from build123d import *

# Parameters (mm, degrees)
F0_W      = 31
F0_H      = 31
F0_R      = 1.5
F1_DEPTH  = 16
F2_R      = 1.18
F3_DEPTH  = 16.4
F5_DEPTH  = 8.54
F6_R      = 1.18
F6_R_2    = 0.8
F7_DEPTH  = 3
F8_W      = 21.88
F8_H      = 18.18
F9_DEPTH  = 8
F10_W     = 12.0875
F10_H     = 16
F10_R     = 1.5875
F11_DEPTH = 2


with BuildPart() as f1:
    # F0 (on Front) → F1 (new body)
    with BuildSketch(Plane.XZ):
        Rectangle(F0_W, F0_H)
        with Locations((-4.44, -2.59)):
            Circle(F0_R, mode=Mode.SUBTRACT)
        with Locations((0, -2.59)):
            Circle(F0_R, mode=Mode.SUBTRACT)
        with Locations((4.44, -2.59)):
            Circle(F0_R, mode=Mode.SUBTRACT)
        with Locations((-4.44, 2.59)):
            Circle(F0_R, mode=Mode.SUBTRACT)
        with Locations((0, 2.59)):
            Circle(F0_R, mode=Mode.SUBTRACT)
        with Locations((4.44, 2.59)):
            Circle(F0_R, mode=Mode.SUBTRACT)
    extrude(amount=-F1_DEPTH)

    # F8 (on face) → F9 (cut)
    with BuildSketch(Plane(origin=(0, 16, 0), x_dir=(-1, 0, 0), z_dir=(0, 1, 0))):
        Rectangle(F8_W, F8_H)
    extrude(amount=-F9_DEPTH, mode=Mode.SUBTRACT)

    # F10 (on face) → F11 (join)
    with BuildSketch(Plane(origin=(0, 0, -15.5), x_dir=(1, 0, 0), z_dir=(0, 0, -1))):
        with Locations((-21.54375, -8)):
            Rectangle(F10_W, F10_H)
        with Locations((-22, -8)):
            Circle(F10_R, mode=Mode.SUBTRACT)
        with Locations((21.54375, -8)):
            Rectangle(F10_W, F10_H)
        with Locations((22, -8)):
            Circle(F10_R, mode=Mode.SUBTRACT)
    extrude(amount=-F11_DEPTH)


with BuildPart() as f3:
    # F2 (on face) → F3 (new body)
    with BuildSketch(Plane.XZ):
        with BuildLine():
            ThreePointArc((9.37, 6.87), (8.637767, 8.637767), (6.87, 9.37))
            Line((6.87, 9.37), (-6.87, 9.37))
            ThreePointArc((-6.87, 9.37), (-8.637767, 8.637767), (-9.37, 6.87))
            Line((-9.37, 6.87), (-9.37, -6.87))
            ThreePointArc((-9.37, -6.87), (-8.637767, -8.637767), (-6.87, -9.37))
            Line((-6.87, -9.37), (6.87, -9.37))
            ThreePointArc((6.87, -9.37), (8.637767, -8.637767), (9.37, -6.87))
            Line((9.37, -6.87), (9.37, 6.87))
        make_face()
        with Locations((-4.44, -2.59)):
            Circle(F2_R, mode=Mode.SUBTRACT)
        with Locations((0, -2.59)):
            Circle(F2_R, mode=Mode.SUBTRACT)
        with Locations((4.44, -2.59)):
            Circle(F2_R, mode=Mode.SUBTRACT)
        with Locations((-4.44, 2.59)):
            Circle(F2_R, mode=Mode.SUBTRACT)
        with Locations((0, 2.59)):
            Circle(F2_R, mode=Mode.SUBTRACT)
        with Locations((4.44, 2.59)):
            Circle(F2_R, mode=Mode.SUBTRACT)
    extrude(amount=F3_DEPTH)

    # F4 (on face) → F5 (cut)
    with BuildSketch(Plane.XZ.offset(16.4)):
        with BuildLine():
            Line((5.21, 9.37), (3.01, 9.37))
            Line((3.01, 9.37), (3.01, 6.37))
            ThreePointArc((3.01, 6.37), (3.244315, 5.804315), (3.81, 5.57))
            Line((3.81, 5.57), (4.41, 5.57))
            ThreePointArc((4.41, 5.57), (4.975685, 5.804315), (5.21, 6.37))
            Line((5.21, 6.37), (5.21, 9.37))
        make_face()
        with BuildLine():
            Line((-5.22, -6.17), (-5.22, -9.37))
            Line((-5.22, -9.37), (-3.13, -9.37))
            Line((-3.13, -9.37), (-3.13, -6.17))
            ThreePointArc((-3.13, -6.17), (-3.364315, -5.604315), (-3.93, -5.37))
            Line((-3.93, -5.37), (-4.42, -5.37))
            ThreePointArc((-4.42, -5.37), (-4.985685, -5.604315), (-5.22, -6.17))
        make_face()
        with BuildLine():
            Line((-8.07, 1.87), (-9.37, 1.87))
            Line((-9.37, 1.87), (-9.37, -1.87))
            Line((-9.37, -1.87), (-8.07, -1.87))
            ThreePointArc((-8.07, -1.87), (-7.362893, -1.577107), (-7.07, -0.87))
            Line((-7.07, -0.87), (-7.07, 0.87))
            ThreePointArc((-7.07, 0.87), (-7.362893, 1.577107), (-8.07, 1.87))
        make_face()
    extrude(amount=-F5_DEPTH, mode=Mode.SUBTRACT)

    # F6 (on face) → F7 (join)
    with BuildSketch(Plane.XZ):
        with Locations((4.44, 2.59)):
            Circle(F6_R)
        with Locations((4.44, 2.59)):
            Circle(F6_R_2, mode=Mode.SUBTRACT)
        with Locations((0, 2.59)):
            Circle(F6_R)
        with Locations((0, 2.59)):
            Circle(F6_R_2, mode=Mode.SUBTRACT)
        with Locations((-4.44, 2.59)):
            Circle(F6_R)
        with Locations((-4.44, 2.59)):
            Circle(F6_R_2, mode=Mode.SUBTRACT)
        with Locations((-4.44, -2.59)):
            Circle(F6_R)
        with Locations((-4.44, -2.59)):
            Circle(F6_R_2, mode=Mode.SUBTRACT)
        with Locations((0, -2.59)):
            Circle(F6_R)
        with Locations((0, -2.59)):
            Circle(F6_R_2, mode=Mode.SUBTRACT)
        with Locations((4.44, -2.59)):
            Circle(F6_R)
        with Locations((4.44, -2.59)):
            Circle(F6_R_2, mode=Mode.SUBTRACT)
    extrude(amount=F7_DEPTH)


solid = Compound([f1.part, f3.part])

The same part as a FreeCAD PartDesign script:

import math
import FreeCAD as App
import Part
import Sketcher

V = App.Vector
Q = App.Units.Quantity


def add_polygon(sketch, points):
    """Adds a closed chain of lines whose ends are joined by coincident constraints."""
    first, n = sketch.GeometryCount, len(points)
    for a, b in zip(points, points[1:] + points[:1]):
        sketch.addGeometry(Part.LineSegment(App.Vector(*a, 0), App.Vector(*b, 0)), False)
    for i in range(n):
        sketch.addConstraint(Sketcher.Constraint("Coincident", first + i, 2, first + (i + 1) % n, 1))

doc = App.newDocument("Part")
body = doc.addObject("PartDesign::Body", "Body")

sketch1 = body.newObject("Sketcher::SketchObject", "Sketch")
sketch1.AttachmentSupport = (doc.getObject("XZ_Plane"), [""])
sketch1.MapMode = "FlatFace"
add_polygon(sketch1, [(-15.5, 15.5), (-15.5, -15.5), (15.5, -15.5), (15.5, 15.5)])
sketch1.addGeometry(Part.Circle(V(-4.4, -2.6, 0), V(0, 0, 1), 1.5), False)
sketch1.addGeometry(Part.Circle(V(0, -2.6, 0), V(0, 0, 1), 1.5), False)
sketch1.addGeometry(Part.Circle(V(4.4, -2.6, 0), V(0, 0, 1), 1.5), False)
sketch1.addGeometry(Part.Circle(V(-4.4, 2.6, 0), V(0, 0, 1), 1.5), False)
sketch1.addGeometry(Part.Circle(V(0, 2.6, 0), V(0, 0, 1), 1.5), False)
sketch1.addGeometry(Part.Circle(V(4.4, 2.6, 0), V(0, 0, 1), 1.5), False)
sketch1.addConstraint([
    Sketcher.Constraint("Vertical", 0),
    Sketcher.Constraint("Horizontal", 1),
    Sketcher.Constraint("Vertical", 2),
    Sketcher.Constraint("Horizontal", 3),
    Sketcher.Constraint("Equal", 4, 5),
    Sketcher.Constraint("Equal", 5, 6),
    Sketcher.Constraint("Equal", 6, 7),
    Sketcher.Constraint("Equal", 7, 8),
    Sketcher.Constraint("Equal", 8, 9),
    Sketcher.Constraint("Symmetric", 6, 3, 7, 3, -1, 1),
    Sketcher.Constraint("Symmetric", 5, 3, 8, 3, -1, 1),
    Sketcher.Constraint("Symmetric", 4, 3, 9, 3, -1, 1),
    Sketcher.Constraint("Symmetric", 0, 2, 2, 2, -1, 1),
    Sketcher.Constraint("Symmetric", 4, 3, 6, 3, -2),
    Sketcher.Constraint("PointOnObject", 5, 3, -2),
    Sketcher.Constraint("Horizontal", 4, 3, 5, 3),
    Sketcher.Constraint("Equal", 3, 0),
    Sketcher.Constraint("Diameter", 4, Q("3 mm")),
    Sketcher.Constraint("DistanceX", 1, 1, 1, 2, Q("31 mm")),
    Sketcher.Constraint("DistanceX", 4, 3, -1, 1, Q("4.44 mm")),
    Sketcher.Constraint("DistanceY", 4, 3, -1, 1, Q("2.59 mm")),
])
pad1 = body.newObject("PartDesign::Pad", "Pad")
pad1.Profile = sketch1
pad1.Length = 16
pad1.Reversed = True

sketch2 = body.newObject("Sketcher::SketchObject", "Sketch001")
sketch2.AttachmentSupport = (doc.getObject("XZ_Plane"), [""])
sketch2.MapMode = "FlatFace"
sketch2.AttachmentOffset = App.Placement(V(0, 0, -16), App.Rotation())
add_polygon(sketch2, [(11, 9), (11, -9), (-11, -9), (-11, 9)])
sketch2.addConstraint([
    Sketcher.Constraint("Vertical", 0),
    Sketcher.Constraint("Horizontal", 1),
    Sketcher.Constraint("Vertical", 2),
    Sketcher.Constraint("Horizontal", 3),
    Sketcher.Constraint("Symmetric", 0, 2, 2, 2, -1, 1),
    Sketcher.Constraint("DistanceX", 1, 2, 1, 1, Q("21.88 mm")),
    Sketcher.Constraint("DistanceY", 0, 2, 0, 1, Q("18.18 mm")),
])
pocket1 = body.newObject("PartDesign::Pocket", "Pocket")
pocket1.Profile = sketch2
pocket1.Length = 8
pocket1.Reversed = True

sketch3 = body.newObject("Sketcher::SketchObject", "Sketch002")
sketch3.AttachmentSupport = (doc.getObject("XY_Plane"), [""])
sketch3.MapMode = "FlatFace"
sketch3.AttachmentOffset = App.Placement(V(0, 0, -15.5), App.Rotation())
add_polygon(sketch3, [(-27.6, 0), (-27.6, 16), (-15.5, 16), (-15.5, 0)])
sketch3.addGeometry(Part.Circle(V(-22, 8, 0), V(0, 0, 1), 1.6), False)
add_polygon(sketch3, [(15.5, 0), (15.5, 16), (27.6, 16), (27.6, 0)])
sketch3.addGeometry(Part.Circle(V(22, 8, 0), V(0, 0, 1), 1.6), False)
sketch3.addConstraint([
    Sketcher.Constraint("Vertical", 0),
    Sketcher.Constraint("Horizontal", 1),
    Sketcher.Constraint("Vertical", 2),
    Sketcher.Constraint("Horizontal", 3),
    Sketcher.Constraint("Vertical", 5),
    Sketcher.Constraint("Horizontal", 6),
    Sketcher.Constraint("Vertical", 7),
    Sketcher.Constraint("Horizontal", 8),
    Sketcher.Constraint("Equal", 4, 9),
    Sketcher.Constraint("Symmetric", 3, 2, 7, 2, -1, 1),
    Sketcher.Constraint("Symmetric", 4, 3, 9, 3, -2),
    Sketcher.Constraint("Symmetric", 1, 2, 5, 2, -2),
    Sketcher.Constraint("PointOnObject", 2, 2, -1),
    Sketcher.Constraint("DistanceY", 0, 1, 0, 2, Q("16 mm")),
    Sketcher.Constraint("Diameter", 4, Q("3.175 mm")),
    Sketcher.Constraint("DistanceX", 4, 3, -1, 1, Q("22 mm")),
    Sketcher.Constraint("DistanceY", -1, 1, 4, 3, Q("8 mm")),
    Sketcher.Constraint("DistanceX", 1, 2, 5, 2, Q("31 mm")),
    Sketcher.Constraint("DistanceX", 1, 1, 1, 2, Q("12.0875 mm")),
])
pad2 = body.newObject("PartDesign::Pad", "Pad001")
pad2.Profile = sketch3
pad2.Length = 2
body2 = doc.addObject("PartDesign::Body", "Body001")

sketch4 = body2.newObject("Sketcher::SketchObject", "Sketch003")
sketch4.AttachmentSupport = (doc.getObject("XZ_Plane001"), [""])
sketch4.MapMode = "FlatFace"
sketch4.addGeometry([
    Part.ArcOfCircle(Part.Circle(V(6.9, 6.9, 0), V(0, 0, 1), 2.5), math.radians(0), math.radians(90)),
    Part.LineSegment(V(6.9, 9.4, 0), V(-6.9, 9.4, 0)),
    Part.ArcOfCircle(Part.Circle(V(-6.9, 6.9, 0), V(0, 0, 1), 2.5), math.radians(90), math.radians(180)),
    Part.LineSegment(V(-9.4, 6.9, 0), V(-9.4, -6.9, 0)),
    Part.ArcOfCircle(Part.Circle(V(-6.9, -6.9, 0), V(0, 0, 1), 2.5), math.radians(180), math.radians(270)),
    Part.LineSegment(V(-6.9, -9.4, 0), V(6.9, -9.4, 0)),
    Part.ArcOfCircle(Part.Circle(V(6.9, -6.9, 0), V(0, 0, 1), 2.5), math.radians(-90), math.radians(0)),
    Part.LineSegment(V(9.4, -6.9, 0), V(9.4, 6.9, 0)),
    Part.Circle(V(-4.4, -2.6, 0), V(0, 0, 1), 1.2),
    Part.Circle(V(0, -2.6, 0), V(0, 0, 1), 1.2),
    Part.Circle(V(4.4, -2.6, 0), V(0, 0, 1), 1.2),
    Part.Circle(V(-4.4, 2.6, 0), V(0, 0, 1), 1.2),
    Part.Circle(V(0, 2.6, 0), V(0, 0, 1), 1.2),
    Part.Circle(V(4.4, 2.6, 0), V(0, 0, 1), 1.2),
], False)
sketch4.addConstraint([
    Sketcher.Constraint("Tangent", 0, 2, 1, 1),
    Sketcher.Constraint("Tangent", 1, 2, 2, 1),
    Sketcher.Constraint("Tangent", 2, 2, 3, 1),
    Sketcher.Constraint("Tangent", 3, 2, 4, 1),
    Sketcher.Constraint("Tangent", 4, 2, 5, 1),
    Sketcher.Constraint("Tangent", 5, 2, 6, 1),
    Sketcher.Constraint("Tangent", 6, 2, 7, 1),
    Sketcher.Constraint("Tangent", 7, 2, 0, 1),
    Sketcher.Constraint("Horizontal", 1),
    Sketcher.Constraint("Vertical", 3),
    Sketcher.Constraint("Horizontal", 5),
    Sketcher.Constraint("Vertical", 7),
    Sketcher.Constraint("Equal", 0, 2),
    Sketcher.Constraint("Equal", 2, 4),
    Sketcher.Constraint("Equal", 4, 6),
    Sketcher.Constraint("Equal", 8, 9),
    Sketcher.Constraint("Equal", 9, 10),
    Sketcher.Constraint("Equal", 10, 11),
    Sketcher.Constraint("Equal", 11, 12),
    Sketcher.Constraint("Equal", 12, 13),
    Sketcher.Constraint("Symmetric", 0, 3, 4, 3, -1, 1),
    Sketcher.Constraint("Symmetric", 10, 3, 11, 3, -1, 1),
    Sketcher.Constraint("Symmetric", 9, 3, 12, 3, -1, 1),
    Sketcher.Constraint("Symmetric", 8, 3, 13, 3, -1, 1),
    Sketcher.Constraint("Symmetric", 8, 3, 10, 3, -2),
    Sketcher.Constraint("PointOnObject", 9, 3, -2),
    Sketcher.Constraint("Horizontal", 8, 3, 9, 3),
    Sketcher.Constraint("Equal", 5, 3),
    Sketcher.Constraint("Radius", 0, Q("2.5 mm")),
    Sketcher.Constraint("Diameter", 8, Q("2.36 mm")),
    Sketcher.Constraint("DistanceX", 1, 2, 1, 1, Q("13.74 mm")),
    Sketcher.Constraint("DistanceX", 8, 3, -1, 1, Q("4.44 mm")),
    Sketcher.Constraint("DistanceY", 8, 3, -1, 1, Q("2.59 mm")),
])
pad3 = body2.newObject("PartDesign::Pad", "Pad002")
pad3.Profile = sketch4
pad3.Length = 16.4

sketch5 = body2.newObject("Sketcher::SketchObject", "Sketch004")
sketch5.AttachmentSupport = (doc.getObject("XZ_Plane001"), [""])
sketch5.MapMode = "FlatFace"
sketch5.AttachmentOffset = App.Placement(V(0, 0, 16.4), App.Rotation())
sketch5.addGeometry([
    Part.LineSegment(V(5.21, 9.37, 0), V(3.01, 9.37, 0)),
    Part.LineSegment(V(3.01, 9.37, 0), V(3.01, 6.37, 0)),
    Part.ArcOfCircle(Part.Circle(V(3.81, 6.37, 0), V(0, 0, 1), 0.8), math.radians(-180), math.radians(-90)),
    Part.LineSegment(V(3.81, 5.57, 0), V(4.41, 5.57, 0)),
    Part.ArcOfCircle(Part.Circle(V(4.41, 6.37, 0), V(0, 0, 1), 0.8), math.radians(-90), math.radians(0)),
    Part.LineSegment(V(5.21, 6.37, 0), V(5.21, 9.37, 0)),
    Part.LineSegment(V(-5.22, -6.17, 0), V(-5.22, -9.37, 0)),
    Part.LineSegment(V(-5.22, -9.37, 0), V(-3.13, -9.37, 0)),
    Part.LineSegment(V(-3.13, -9.37, 0), V(-3.13, -6.17, 0)),
    Part.ArcOfCircle(Part.Circle(V(-3.93, -6.17, 0), V(0, 0, 1), 0.8), math.radians(0), math.radians(90)),
    Part.LineSegment(V(-3.93, -5.37, 0), V(-4.42, -5.37, 0)),
    Part.ArcOfCircle(Part.Circle(V(-4.42, -6.17, 0), V(0, 0, 1), 0.8), math.radians(90), math.radians(180)),
    Part.LineSegment(V(-8.07, 1.87, 0), V(-9.37, 1.87, 0)),
    Part.LineSegment(V(-9.37, 1.87, 0), V(-9.37, -1.87, 0)),
    Part.LineSegment(V(-9.37, -1.87, 0), V(-8.07, -1.87, 0)),
    Part.ArcOfCircle(Part.Circle(V(-8.07, -0.87, 0), V(0, 0, 1), 1), math.radians(-90), math.radians(0)),
    Part.LineSegment(V(-7.07, -0.87, 0), V(-7.07, 0.87, 0)),
    Part.ArcOfCircle(Part.Circle(V(-8.07, 0.87, 0), V(0, 0, 1), 1), math.radians(0), math.radians(90)),
], False)
sketch5.addConstraint([
    Sketcher.Constraint("Coincident", 0, 2, 1, 1),
    Sketcher.Constraint("Tangent", 1, 2, 2, 1),
    Sketcher.Constraint("Tangent", 2, 2, 3, 1),
    Sketcher.Constraint("Tangent", 3, 2, 4, 1),
    Sketcher.Constraint("Tangent", 4, 2, 5, 1),
    Sketcher.Constraint("Coincident", 5, 2, 0, 1),
    Sketcher.Constraint("Coincident", 6, 2, 7, 1),
    Sketcher.Constraint("Coincident", 7, 2, 8, 1),
    Sketcher.Constraint("Tangent", 8, 2, 9, 1),
    Sketcher.Constraint("Tangent", 9, 2, 10, 1),
    Sketcher.Constraint("Tangent", 10, 2, 11, 1),
    Sketcher.Constraint("Tangent", 11, 2, 6, 1),
    Sketcher.Constraint("Coincident", 12, 2, 13, 1),
    Sketcher.Constraint("Coincident", 13, 2, 14, 1),
    Sketcher.Constraint("Tangent", 14, 2, 15, 1),
    Sketcher.Constraint("Tangent", 15, 2, 16, 1),
    Sketcher.Constraint("Tangent", 16, 2, 17, 1),
    Sketcher.Constraint("Tangent", 17, 2, 12, 1),
    Sketcher.Constraint("Horizontal", 0),
    Sketcher.Constraint("Vertical", 1),
    Sketcher.Constraint("Horizontal", 3),
    Sketcher.Constraint("Vertical", 5),
    Sketcher.Constraint("Vertical", 6),
    Sketcher.Constraint("Horizontal", 7),
    Sketcher.Constraint("Vertical", 8),
    Sketcher.Constraint("Horizontal", 10),
    Sketcher.Constraint("Horizontal", 12),
    Sketcher.Constraint("Vertical", 13),
    Sketcher.Constraint("Horizontal", 14),
    Sketcher.Constraint("Vertical", 16),
    Sketcher.Constraint("Equal", 2, 4),
    Sketcher.Constraint("Equal", 4, 9),
    Sketcher.Constraint("Equal", 9, 11),
    Sketcher.Constraint("Equal", 15, 17),
    Sketcher.Constraint("Radius", 15, Q("0.999999 mm")),
    Sketcher.Constraint("Radius", 2, Q("0.800001 mm")),
    Sketcher.Constraint("DistanceY", 1, 2, 1, 1, Q("3 mm")),
    Sketcher.Constraint("DistanceX", 0, 2, 0, 1, Q("2.2 mm")),
    Sketcher.Constraint("DistanceX", 12, 2, 12, 1, Q("1.3 mm")),
    Sketcher.Constraint("DistanceY", 6, 2, 6, 1, Q("3.2 mm")),
    Sketcher.Constraint("DistanceX", 7, 1, 7, 2, Q("2.09 mm")),
    Sketcher.Constraint("DistanceY", 13, 2, 13, 1, Q("3.74 mm")),
    Sketcher.Constraint("DistanceY", 11, 3, 15, 3, Q("5.300001 mm")),
    Sketcher.Constraint("DistanceY", 17, 3, 2, 3, Q("5.500001 mm")),
    Sketcher.Constraint("DistanceX", -1, 1, 2, 3, Q("3.810001 mm")),
    Sketcher.Constraint("DistanceY", -1, 1, 2, 3, Q("6.370001 mm")),
    Sketcher.Constraint("DistanceX", 9, 3, -1, 1, Q("3.930001 mm")),
    Sketcher.Constraint("DistanceX", 15, 3, -1, 1, Q("8.069999 mm")),
])
pocket2 = body2.newObject("PartDesign::Pocket", "Pocket001")
pocket2.Profile = sketch5
pocket2.Length = 8.54

sketch6 = body2.newObject("Sketcher::SketchObject", "Sketch005")
sketch6.AttachmentSupport = (doc.getObject("XZ_Plane001"), [""])
sketch6.MapMode = "FlatFace"
sketch6.addGeometry([
    Part.Circle(V(4.4, 2.6, 0), V(0, 0, 1), 1.2),
    Part.Circle(V(4.4, 2.6, 0), V(0, 0, 1), 0.8),
    Part.Circle(V(0, 2.6, 0), V(0, 0, 1), 1.2),
    Part.Circle(V(0, 2.6, 0), V(0, 0, 1), 0.8),
    Part.Circle(V(-4.4, 2.6, 0), V(0, 0, 1), 1.2),
    Part.Circle(V(-4.4, 2.6, 0), V(0, 0, 1), 0.8),
    Part.Circle(V(-4.4, -2.6, 0), V(0, 0, 1), 1.2),
    Part.Circle(V(-4.4, -2.6, 0), V(0, 0, 1), 0.8),
    Part.Circle(V(0, -2.6, 0), V(0, 0, 1), 1.2),
    Part.Circle(V(0, -2.6, 0), V(0, 0, 1), 0.8),
    Part.Circle(V(4.4, -2.6, 0), V(0, 0, 1), 1.2),
    Part.Circle(V(4.4, -2.6, 0), V(0, 0, 1), 0.8),
], False)
sketch6.addConstraint([
    Sketcher.Constraint("Coincident", 1, 3, 0, 3),
    Sketcher.Constraint("Coincident", 3, 3, 2, 3),
    Sketcher.Constraint("Coincident", 5, 3, 4, 3),
    Sketcher.Constraint("Coincident", 7, 3, 6, 3),
    Sketcher.Constraint("Coincident", 9, 3, 8, 3),
    Sketcher.Constraint("Coincident", 11, 3, 10, 3),
    Sketcher.Constraint("Equal", 0, 2),
    Sketcher.Constraint("Equal", 1, 3),
    Sketcher.Constraint("Equal", 2, 4),
    Sketcher.Constraint("Equal", 3, 5),
    Sketcher.Constraint("Equal", 4, 6),
    Sketcher.Constraint("Equal", 5, 7),
    Sketcher.Constraint("Equal", 6, 8),
    Sketcher.Constraint("Equal", 7, 9),
    Sketcher.Constraint("Equal", 8, 10),
    Sketcher.Constraint("Equal", 9, 11),
    Sketcher.Constraint("Symmetric", 0, 3, 6, 3, -1, 1),
    Sketcher.Constraint("Symmetric", 2, 3, 8, 3, -1, 1),
    Sketcher.Constraint("Symmetric", 4, 3, 10, 3, -1, 1),
    Sketcher.Constraint("Symmetric", 0, 3, 4, 3, -2),
    Sketcher.Constraint("PointOnObject", 2, 3, -2),
    Sketcher.Constraint("Horizontal", 1, 3, 2, 3),
    Sketcher.Constraint("Diameter", 1, Q("1.6 mm")),
    Sketcher.Constraint("Diameter", 0, Q("2.36 mm")),
    Sketcher.Constraint("DistanceX", -1, 1, 0, 3, Q("4.44 mm")),
    Sketcher.Constraint("DistanceY", -1, 1, 0, 3, Q("2.59 mm")),
])
pad4 = body2.newObject("PartDesign::Pad", "Pad003")
pad4.Profile = sketch6
pad4.Length = 3

doc.recompute()
